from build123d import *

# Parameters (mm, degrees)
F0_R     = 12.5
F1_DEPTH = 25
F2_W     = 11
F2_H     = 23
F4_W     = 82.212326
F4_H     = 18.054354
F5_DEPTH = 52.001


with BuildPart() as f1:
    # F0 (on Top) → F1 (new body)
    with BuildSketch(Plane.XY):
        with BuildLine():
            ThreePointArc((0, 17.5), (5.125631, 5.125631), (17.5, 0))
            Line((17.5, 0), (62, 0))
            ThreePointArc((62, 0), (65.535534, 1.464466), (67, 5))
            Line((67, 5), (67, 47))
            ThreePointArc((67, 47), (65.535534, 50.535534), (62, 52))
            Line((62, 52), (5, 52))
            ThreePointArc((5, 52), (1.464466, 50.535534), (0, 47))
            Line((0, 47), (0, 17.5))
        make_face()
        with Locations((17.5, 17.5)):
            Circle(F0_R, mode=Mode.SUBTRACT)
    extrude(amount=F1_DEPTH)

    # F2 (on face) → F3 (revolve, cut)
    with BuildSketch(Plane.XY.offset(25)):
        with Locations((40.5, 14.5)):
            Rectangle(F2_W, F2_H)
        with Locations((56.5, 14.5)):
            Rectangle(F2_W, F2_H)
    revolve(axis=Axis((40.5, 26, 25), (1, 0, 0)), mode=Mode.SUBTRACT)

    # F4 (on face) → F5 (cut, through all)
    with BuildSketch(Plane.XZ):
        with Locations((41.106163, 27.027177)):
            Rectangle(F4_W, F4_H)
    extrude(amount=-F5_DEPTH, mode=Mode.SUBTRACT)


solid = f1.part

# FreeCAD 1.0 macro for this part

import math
import FreeCAD as App
import Part
import Sketcher
from FreeCAD import Vector


def add_polygon(sketch, points):
    """Adds a closed chain of lines whose ends are joined by coincident constraints."""
    first, n = sketch.GeometryCount, len(points)
    for a, b in zip(points, points[1:] + points[:1]):
        sketch.addGeometry(Part.LineSegment(App.Vector(*a, 0), App.Vector(*b, 0)), False)
    for i in range(n):
        sketch.addConstraint(Sketcher.Constraint("Coincident", first + i, 2, first + (i + 1) % n, 1))

doc = App.newDocument("Part")
body = doc.addObject("PartDesign::Body", "Body")

# Sketch on XY plane
sketch1 = body.newObject("Sketcher::SketchObject", "Sketch")
sketch1.AttachmentSupport = (doc.getObject("XY_Plane"), [""])
sketch1.MapMode = "FlatFace"
sketch1.addGeometry([
    Part.ArcOfCircle(Part.Circle(Vector(17.5, 17.5, 0), Vector(0, 0, 1), 17.5), math.radians(180), math.radians(270)),  # 0
    Part.LineSegment(Vector(17.5, 0, 0), Vector(62, 0, 0)),  # 1
    Part.ArcOfCircle(Part.Circle(Vector(62, 5, 0), Vector(0, 0, 1), 5), math.radians(-90), math.radians(0)),  # 2
    Part.LineSegment(Vector(67, 5, 0), Vector(67, 47, 0)),  # 3
    Part.ArcOfCircle(Part.Circle(Vector(62, 47, 0), Vector(0, 0, 1), 5), math.radians(0), math.radians(90)),  # 4
    Part.LineSegment(Vector(62, 52, 0), Vector(5, 52, 0)),  # 5
    Part.ArcOfCircle(Part.Circle(Vector(5, 47, 0), Vector(0, 0, 1), 5), math.radians(90), math.radians(180)),  # 6
    Part.LineSegment(Vector(0, 47, 0), Vector(0, 17.5, 0)),  # 7
    Part.Circle(Vector(17.5, 17.5, 0), Vector(0, 0, 1), 12.5),  # 8
], False)
sketch1.addConstraint([
    Sketcher.Constraint("Tangent", 0, 2, 1, 1),
    Sketcher.Constraint("Tangent", 1, 2, 2, 1),
    Sketcher.Constraint("Tangent", 2, 2, 3, 1),
    Sketcher.Constraint("Tangent", 3, 2, 4, 1),
    Sketcher.Constraint("Tangent", 4, 2, 5, 1),
    Sketcher.Constraint("Tangent", 5, 2, 6, 1),
    Sketcher.Constraint("Tangent", 6, 2, 7, 1),
    Sketcher.Constraint("Tangent", 7, 2, 0, 1),
    Sketcher.Constraint("Horizontal", 1),
    Sketcher.Constraint("Vertical", 3),
    Sketcher.Constraint("Horizontal", 5),
    Sketcher.Constraint("Vertical", 7),
    Sketcher.Constraint("Coincident", 8, 3, 0, 3),
    Sketcher.Constraint("Equal", 2, 4),
    Sketcher.Constraint("Equal", 4, 6),
    Sketcher.Constraint("PointOnObject", 0, 2, -1),
    Sketcher.Constraint("PointOnObject", 6, 2, -2),
    Sketcher.Constraint("Diameter", 8, 25.0),
    Sketcher.Constraint("Radius", 2, 5.0),
    Sketcher.Constraint("Radius", 0, 17.499999),
    Sketcher.Constraint("DistanceX", 5, 2, 5, 1, 57.0),
    Sketcher.Constraint("DistanceY", 3, 1, 3, 2, 42.0),
])
pad1 = body.newObject("PartDesign::Pad", "Pad")
pad1.Profile = sketch1
pad1.Length = 25

# Sketch on XY plane
sketch2 = body.newObject("Sketcher::SketchObject", "Sketch001")
sketch2.AttachmentSupport = (doc.getObject("XY_Plane"), [""])
sketch2.MapMode = "FlatFace"
sketch2.AttachmentOffset = App.Placement(Vector(0, 0, 25), App.Rotation())
add_polygon(sketch2, [(35, 26), (35, 3), (46, 3), (46, 26)])  # lines 0-3
add_polygon(sketch2, [(51, 26), (51, 3), (62, 3), (62, 26)])  # lines 4-7
sketch2.addGeometry(Part.LineSegment(Vector(35, 26, 0), Vector(62, 26, 0)), True)  # axis
sketch2.addConstraint([
    Sketcher.Constraint("Vertical", 0),
    Sketcher.Constraint("Horizontal", 1),
    Sketcher.Constraint("Vertical", 2),
    Sketcher.Constraint("Horizontal", 3),
    Sketcher.Constraint("Vertical", 4),
    Sketcher.Constraint("Horizontal", 5),
    Sketcher.Constraint("Vertical", 6),
    Sketcher.Constraint("Horizontal", 7),
    Sketcher.Constraint("Horizontal", 8),
    Sketcher.Constraint("Coincident", 8, 1, 3, 2),
    Sketcher.Constraint("Coincident", 8, 2, 6, 2),
    Sketcher.Constraint("Horizontal", 1, 2, 4, 2),
    Sketcher.Constraint("Equal", 3, 5),
    Sketcher.Constraint("DistanceX", 1, 1, 1, 2, 11.0),
    Sketcher.Constraint("DistanceX", 8, 1, 8, 2, 27.0),
    Sketcher.Constraint("DistanceY", 0, 2, 0, 1, 23.0),
    Sketcher.Constraint("DistanceX", -1, 1, 0, 2, 35.0),
    Sketcher.Constraint("DistanceY", -1, 1, 0, 2, 3.0),
])
groove = body.newObject("PartDesign::Groove", "Groove")
groove.Profile = sketch2
groove.ReferenceAxis = (sketch2, ["Axis0"])
groove.Angle = 360

# Sketch on XZ plane
sketch3 = body.newObject("Sketcher::SketchObject", "Sketch002")
sketch3.AttachmentSupport = (doc.getObject("XZ_Plane"), [""])
sketch3.MapMode = "FlatFace"
add_polygon(sketch3, [(0, 36), (0, 18), (82, 18), (82, 36)])  # lines 0-3
sketch3.addConstraint([
    Sketcher.Constraint("Vertical", 0),
    Sketcher.Constraint("Horizontal", 1),
    Sketcher.Constraint("Vertical", 2),
    Sketcher.Constraint("Horizontal", 3),
    Sketcher.Constraint("PointOnObject", 0, 2, -2),
    Sketcher.Constraint("DistanceY", -1, 1, 0, 2, 18.0),
    Sketcher.Constraint("DistanceX", 1, 1, 1, 2, 82.212326),
    Sketcher.Constraint("DistanceY", 0, 2, 0, 1, 18.054354),
])
pocket1 = body.newObject("PartDesign::Pocket", "Pocket")
pocket1.Profile = sketch3
pocket1.Type = "ThroughAll"

doc.recompute()
